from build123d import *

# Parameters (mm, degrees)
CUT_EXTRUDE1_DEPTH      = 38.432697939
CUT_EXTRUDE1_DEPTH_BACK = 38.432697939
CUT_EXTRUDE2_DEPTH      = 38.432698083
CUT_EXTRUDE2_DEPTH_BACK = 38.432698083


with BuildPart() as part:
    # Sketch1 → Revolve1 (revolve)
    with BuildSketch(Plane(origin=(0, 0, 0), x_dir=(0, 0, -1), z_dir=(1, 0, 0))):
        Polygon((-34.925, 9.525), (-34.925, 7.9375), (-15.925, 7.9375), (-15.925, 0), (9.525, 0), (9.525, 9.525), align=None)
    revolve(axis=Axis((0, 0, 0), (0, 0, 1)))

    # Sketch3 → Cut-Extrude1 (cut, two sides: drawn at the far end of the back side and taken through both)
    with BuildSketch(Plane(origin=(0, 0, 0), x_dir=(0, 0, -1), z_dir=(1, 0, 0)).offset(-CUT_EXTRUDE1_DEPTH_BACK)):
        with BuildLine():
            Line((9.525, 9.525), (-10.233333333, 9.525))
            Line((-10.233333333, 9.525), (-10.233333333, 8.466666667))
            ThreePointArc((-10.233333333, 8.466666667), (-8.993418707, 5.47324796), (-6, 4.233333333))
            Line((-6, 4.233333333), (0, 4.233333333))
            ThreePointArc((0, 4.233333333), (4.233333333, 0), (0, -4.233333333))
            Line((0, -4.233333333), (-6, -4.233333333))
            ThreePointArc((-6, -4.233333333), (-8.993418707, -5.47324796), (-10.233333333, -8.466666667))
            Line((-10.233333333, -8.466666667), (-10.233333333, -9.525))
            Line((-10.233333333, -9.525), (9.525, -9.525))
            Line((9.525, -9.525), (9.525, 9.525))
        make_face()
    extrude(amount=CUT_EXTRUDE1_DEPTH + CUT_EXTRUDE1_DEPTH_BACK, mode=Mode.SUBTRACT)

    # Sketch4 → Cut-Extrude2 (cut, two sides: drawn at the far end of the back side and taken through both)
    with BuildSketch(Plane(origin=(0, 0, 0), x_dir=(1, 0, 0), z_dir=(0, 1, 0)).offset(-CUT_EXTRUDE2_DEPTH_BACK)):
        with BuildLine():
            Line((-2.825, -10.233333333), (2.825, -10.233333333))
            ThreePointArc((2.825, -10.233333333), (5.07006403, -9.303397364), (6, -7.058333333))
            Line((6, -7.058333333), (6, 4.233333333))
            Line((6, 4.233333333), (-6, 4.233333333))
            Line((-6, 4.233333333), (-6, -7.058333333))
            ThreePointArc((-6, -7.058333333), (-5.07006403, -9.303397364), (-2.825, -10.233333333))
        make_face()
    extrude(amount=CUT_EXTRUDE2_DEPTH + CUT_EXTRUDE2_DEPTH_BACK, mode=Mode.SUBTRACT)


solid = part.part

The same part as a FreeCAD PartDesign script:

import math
import FreeCAD as App
import Part
import Sketcher
from FreeCAD import Vector
Q = App.Units.Quantity

doc = App.newDocument("Part")
params = doc.addObject("Spreadsheet::Sheet", "Params")
for row, (alias, value) in enumerate([
    ("sketch1_height", "1.75 in"),
    ("sketch1_width", "0.0625 in"),
    ("sketch1_width2", "0.3125 in"),
    ("revolution_angle", "360 deg"),
    ("sketch2_width", "0.75 in"),
    ("sketch3_radius", "0.125 in"),
], start=1):
    params.set(f"A{row}", alias)
    params.set(f"B{row}", "=" + value)
    params.setAlias(f"B{row}", alias)

body = doc.addObject("PartDesign::Body", "Body")

# Sketch on YZ plane
sketch1 = doc.addObject("Sketcher::SketchObject", "Sketch")
body.addObject(sketch1)
sketch1.AttachmentSupport = (doc.YZ_Plane, [""])
sketch1.MapMode = "FlatFace"
sketch1.addGeometry([
    Part.LineSegment(Vector(9.5, 34.9, 0), Vector(7.9, 34.9, 0)),  # 0
    Part.LineSegment(Vector(7.9, 34.9, 0), Vector(7.9, 15.9, 0)),  # 1
    Part.LineSegment(Vector(7.9, 15.9, 0), Vector(0, 15.9, 0)),  # 2
    Part.LineSegment(Vector(0, 15.9, 0), Vector(0, -9.5, 0)),  # 3
    Part.LineSegment(Vector(0, -9.5, 0), Vector(9.5, -9.5, 0)),  # 4
    Part.LineSegment(Vector(9.5, -9.5, 0), Vector(9.5, 34.9, 0)),  # 5
], False)
sketch1.addConstraint([
    Sketcher.Constraint("Coincident", 0, 2, 1, 1),
    Sketcher.Constraint("Coincident", 1, 2, 2, 1),
    Sketcher.Constraint("Coincident", 2, 2, 3, 1),
    Sketcher.Constraint("Coincident", 3, 2, 4, 1),
    Sketcher.Constraint("Coincident", 4, 2, 5, 1),
    Sketcher.Constraint("Coincident", 5, 2, 0, 1),
    Sketcher.Constraint("Horizontal", 0),
    Sketcher.Constraint("Vertical", 1),
    Sketcher.Constraint("Horizontal", 2),
    Sketcher.Constraint("Vertical", 3),
    Sketcher.Constraint("Horizontal", 4),
    Sketcher.Constraint("Vertical", 5),
    Sketcher.Constraint("PointOnObject", 2, 2, -2),
    Sketcher.Constraint("DistanceY", 5, 1, 5, 2, Q("1.75 in")),
    Sketcher.Constraint("DistanceX", 0, 2, 0, 1, Q("0.0625 in")),
    Sketcher.Constraint("DistanceX", 2, 2, 2, 1, Q("0.3125 in")),
    Sketcher.Constraint("DistanceY", -1, 1, 0, 2, Q("1.375 in")),
    Sketcher.Constraint("DistanceY", 1, 2, 1, 1, 19.0),
])
sketch1.setExpression("Constraints[13]", "Params.sketch1_height")
sketch1.setExpression("Constraints[14]", "Params.sketch1_width")
sketch1.setExpression("Constraints[15]", "Params.sketch1_width2")
revolution = doc.addObject("PartDesign::Revolution", "Revolution")
body.addObject(revolution)
revolution.Profile = sketch1
revolution.ReferenceAxis = (sketch1, ["V_Axis"])
revolution.setExpression("Angle", "Params.revolution_angle")

# Sketch on YZ plane
sketch2 = doc.addObject("Sketcher::SketchObject", "Sketch001")
body.addObject(sketch2)
sketch2.AttachmentSupport = (doc.YZ_Plane, [""])
sketch2.MapMode = "FlatFace"
sketch2.addGeometry([
    Part.LineSegment(Vector(9.5, -9.5, 0), Vector(9.5, 10.2, 0)),  # 0
    Part.LineSegment(Vector(9.5, 10.2, 0), Vector(8.5, 10.2, 0)),  # 1
    Part.ArcOfCircle(Part.Circle(Vector(8.5, 6, 0), Vector(0, 0, 1), 4.2), math.radians(90), math.radians(180)),  # 2
    Part.LineSegment(Vector(4.2, 6, 0), Vector(4.2, 0, 0)),  # 3
    Part.ArcOfCircle(Part.Circle(Vector(0, 0, 0), Vector(0, 0, 1), 4.2), math.radians(180), math.radians(360)),  # 4
    Part.LineSegment(Vector(-4.2, 0, 0), Vector(-4.2, 6, 0)),  # 5
    Part.ArcOfCircle(Part.Circle(Vector(-8.5, 6, 0), Vector(0, 0, 1), 4.2), math.radians(0), math.radians(90)),  # 6
    Part.LineSegment(Vector(-8.5, 10.2, 0), Vector(-9.5, 10.2, 0)),  # 7
    Part.LineSegment(Vector(-9.5, 10.2, 0), Vector(-9.5, -9.5, 0)),  # 8
    Part.LineSegment(Vector(-9.5, -9.5, 0), Vector(9.5, -9.5, 0)),  # 9
], False)
sketch2.addConstraint([
    Sketcher.Constraint("Coincident", 0, 2, 1, 1),
    Sketcher.Constraint("Tangent", 1, 2, 2, 1),
    Sketcher.Constraint("Tangent", 2, 2, 3, 1),
    Sketcher.Constraint("Tangent", 3, 2, 4, 2),
    Sketcher.Constraint("Tangent", 4, 1, 5, 1),
    Sketcher.Constraint("Tangent", 5, 2, 6, 1),
    Sketcher.Constraint("Tangent", 6, 2, 7, 1),
    Sketcher.Constraint("Coincident", 7, 2, 8, 1),
    Sketcher.Constraint("Coincident", 8, 2, 9, 1),
    Sketcher.Constraint("Coincident", 9, 2, 0, 1),
    Sketcher.Constraint("Vertical", 0),
    Sketcher.Constraint("Horizontal", 1),
    Sketcher.Constraint("Vertical", 3),
    Sketcher.Constraint("Vertical", 5),
    Sketcher.Constraint("Horizontal", 7),
    Sketcher.Constraint("Vertical", 8),
    Sketcher.Constraint("Horizontal", 9),
    Sketcher.Constraint("Coincident", 4, 3, -1, 1),
    Sketcher.Constraint("Equal", 2, 4),
    Sketcher.Constraint("Equal", 4, 6),
    Sketcher.Constraint("Symmetric", 0, 2, 7, 2, -2),
    Sketcher.Constraint("DistanceX", 9, 1, 9, 2, Q("0.75 in")),
    Sketcher.Constraint("DistanceX", 6, 3, 2, 2, Q("0.5 in")),
    Sketcher.Constraint("DistanceY", 8, 2, -1, 1, Q("0.375 in")),
    Sketcher.Constraint("DistanceY", 3, 2, 3, 1, 6.0),
])
sketch2.setExpression("Constraints[21]", "Params.sketch2_width")
pocket1 = doc.addObject("PartDesign::Pocket", "Pocket")
body.addObject(pocket1)
pocket1.Profile = sketch2
pocket1.Type = "ThroughAll"
pocket1.Midplane = True

# Sketch on XZ plane
sketch3 = doc.addObject("Sketcher::SketchObject", "Sketch002")
body.addObject(sketch3)
sketch3.AttachmentSupport = (doc.XZ_Plane, [""])
sketch3.MapMode = "FlatFace"
sketch3.addGeometry([
    Part.LineSegment(Vector(-2.8, 10.2, 0), Vector(2.8, 10.2, 0)),  # 0
    Part.ArcOfCircle(Part.Circle(Vector(2.8, 7.1, 0), Vector(0, 0, 1), 3.2), math.radians(0), math.radians(90)),  # 1
    Part.LineSegment(Vector(6, 7.1, 0), Vector(6, -4.2, 0)),  # 2
    Part.LineSegment(Vector(6, -4.2, 0), Vector(-6, -4.2, 0)),  # 3
    Part.LineSegment(Vector(-6, -4.2, 0), Vector(-6, 7.1, 0)),  # 4
    Part.ArcOfCircle(Part.Circle(Vector(-2.8, 7.1, 0), Vector(0, 0, 1), 3.2), math.radians(90), math.radians(180)),  # 5
], False)
sketch3.addConstraint([
    Sketcher.Constraint("Tangent", 0, 2, 1, 2),
    Sketcher.Constraint("Tangent", 1, 1, 2, 1),
    Sketcher.Constraint("Coincident", 2, 2, 3, 1),
    Sketcher.Constraint("Coincident", 3, 2, 4, 1),
    Sketcher.Constraint("Tangent", 4, 2, 5, 2),
    Sketcher.Constraint("Tangent", 5, 1, 0, 1),
    Sketcher.Constraint("Horizontal", 0),
    Sketcher.Constraint("Vertical", 2),
    Sketcher.Constraint("Horizontal", 3),
    Sketcher.Constraint("Vertical", 4),
    Sketcher.Constraint("Equal", 1, 5),
    Sketcher.Constraint("Radius", 1, Q("0.125 in")),
    Sketcher.Constraint("DistanceX", 0, 1, 0, 2, 5.65),
    Sketcher.Constraint("DistanceX", -1, 1, 1, 3, 2.825),
    Sketcher.Constraint("DistanceY", 2, 2, 2, 1, 11.291667),
    Sketcher.Constraint("DistanceY", -1, 1, 1, 3, 7.058333),
])
sketch3.setExpression("Constraints[11]", "Params.sketch3_radius")
pocket2 = doc.addObject("PartDesign::Pocket", "Pocket001")
body.addObject(pocket2)
pocket2.Profile = sketch3
pocket2.Type = "ThroughAll"
pocket2.Midplane = True

doc.recompute()
